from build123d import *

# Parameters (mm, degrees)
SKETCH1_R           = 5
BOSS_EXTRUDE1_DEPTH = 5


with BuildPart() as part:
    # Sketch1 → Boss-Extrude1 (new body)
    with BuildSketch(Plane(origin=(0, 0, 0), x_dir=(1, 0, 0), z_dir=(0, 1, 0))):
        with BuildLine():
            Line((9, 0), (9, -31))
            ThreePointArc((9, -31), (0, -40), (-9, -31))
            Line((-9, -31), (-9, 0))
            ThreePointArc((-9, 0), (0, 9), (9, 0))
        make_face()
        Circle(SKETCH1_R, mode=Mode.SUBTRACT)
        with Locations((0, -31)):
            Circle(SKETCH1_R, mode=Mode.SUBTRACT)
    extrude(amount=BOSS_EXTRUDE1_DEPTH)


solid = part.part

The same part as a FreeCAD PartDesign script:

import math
import FreeCAD as App
import Part
import Sketcher
Q = App.Units.Quantity

doc = App.newDocument("Part")
params = doc.addObject("Spreadsheet::Sheet", "Params")
for row, (alias, value) in enumerate([
    ("sketch1_diameter", "10 mm"),
    ("sketch1_radius", "9 mm"),
    ("sketch1_height", "31 mm"),
    ("pad1_length", "5 mm"),
], start=1):
    params.set(f"A{row}", alias)
    params.set(f"B{row}", "=" + value)
    params.setAlias(f"B{row}", alias)

body = doc.addObject("PartDesign::Body", "Body")

sketch1 = body.newObject("Sketcher::SketchObject", "Sketch")
sketch1.AttachmentSupport = (doc.getObject("XZ_Plane"), [""])
sketch1.MapMode = "FlatFace"
sketch1.addGeometry(Part.LineSegment(App.Vector(9, 31, 0), App.Vector(9, 0, 0)), False)
sketch1.addGeometry(Part.ArcOfCircle(Part.Circle(App.Vector(0, 0, 0), App.Vector(0, 0, 1), 9), math.radians(180), math.radians(360)), False)
sketch1.addGeometry(Part.LineSegment(App.Vector(-9, 0, 0), App.Vector(-9, 31, 0)), False)
sketch1.addGeometry(Part.ArcOfCircle(Part.Circle(App.Vector(0, 31, 0), App.Vector(0, 0, 1), 9), math.radians(0), math.radians(180)), False)
sketch1.addGeometry(Part.Circle(App.Vector(0, 31, 0), App.Vector(0, 0, 1), 5), False)
sketch1.addGeometry(Part.Circle(App.Vector(0, 0, 0), App.Vector(0, 0, 1), 5), False)
sketch1.addConstraint(Sketcher.Constraint("Tangent", 0, 2, 1, 2))
sketch1.addConstraint(Sketcher.Constraint("Tangent", 1, 1, 2, 1))
sketch1.addConstraint(Sketcher.Constraint("Tangent", 2, 2, 3, 2))
sketch1.addConstraint(Sketcher.Constraint("Tangent", 3, 1, 0, 1))
sketch1.addConstraint(Sketcher.Constraint("Vertical", 0))
sketch1.addConstraint(Sketcher.Constraint("Vertical", 2))
sketch1.addConstraint(Sketcher.Constraint("Coincident", 1, 3, -1, 1))
sketch1.addConstraint(Sketcher.Constraint("Coincident", 5, 3, -1, 1))
sketch1.addConstraint(Sketcher.Constraint("Coincident", 4, 3, 3, 3))
sketch1.addConstraint(Sketcher.Constraint("Equal", 4, 5))
sketch1.addConstraint(Sketcher.Constraint("Diameter", 4, Q("10 mm")))
sketch1.addConstraint(Sketcher.Constraint("Radius", 1, Q("9 mm")))
sketch1.addConstraint(Sketcher.Constraint("DistanceY", 0, 2, 0, 1, Q("31 mm")))
sketch1.setExpression("Constraints[10]", "Params.sketch1_diameter")
sketch1.setExpression("Constraints[11]", "Params.sketch1_radius")
sketch1.setExpression("Constraints[12]", "Params.sketch1_height")
pad1 = body.newObject("PartDesign::Pad", "Pad")
pad1.Profile = sketch1
pad1.setExpression("Length", "Params.pad1_length")
pad1.Reversed = True

doc.recompute()
